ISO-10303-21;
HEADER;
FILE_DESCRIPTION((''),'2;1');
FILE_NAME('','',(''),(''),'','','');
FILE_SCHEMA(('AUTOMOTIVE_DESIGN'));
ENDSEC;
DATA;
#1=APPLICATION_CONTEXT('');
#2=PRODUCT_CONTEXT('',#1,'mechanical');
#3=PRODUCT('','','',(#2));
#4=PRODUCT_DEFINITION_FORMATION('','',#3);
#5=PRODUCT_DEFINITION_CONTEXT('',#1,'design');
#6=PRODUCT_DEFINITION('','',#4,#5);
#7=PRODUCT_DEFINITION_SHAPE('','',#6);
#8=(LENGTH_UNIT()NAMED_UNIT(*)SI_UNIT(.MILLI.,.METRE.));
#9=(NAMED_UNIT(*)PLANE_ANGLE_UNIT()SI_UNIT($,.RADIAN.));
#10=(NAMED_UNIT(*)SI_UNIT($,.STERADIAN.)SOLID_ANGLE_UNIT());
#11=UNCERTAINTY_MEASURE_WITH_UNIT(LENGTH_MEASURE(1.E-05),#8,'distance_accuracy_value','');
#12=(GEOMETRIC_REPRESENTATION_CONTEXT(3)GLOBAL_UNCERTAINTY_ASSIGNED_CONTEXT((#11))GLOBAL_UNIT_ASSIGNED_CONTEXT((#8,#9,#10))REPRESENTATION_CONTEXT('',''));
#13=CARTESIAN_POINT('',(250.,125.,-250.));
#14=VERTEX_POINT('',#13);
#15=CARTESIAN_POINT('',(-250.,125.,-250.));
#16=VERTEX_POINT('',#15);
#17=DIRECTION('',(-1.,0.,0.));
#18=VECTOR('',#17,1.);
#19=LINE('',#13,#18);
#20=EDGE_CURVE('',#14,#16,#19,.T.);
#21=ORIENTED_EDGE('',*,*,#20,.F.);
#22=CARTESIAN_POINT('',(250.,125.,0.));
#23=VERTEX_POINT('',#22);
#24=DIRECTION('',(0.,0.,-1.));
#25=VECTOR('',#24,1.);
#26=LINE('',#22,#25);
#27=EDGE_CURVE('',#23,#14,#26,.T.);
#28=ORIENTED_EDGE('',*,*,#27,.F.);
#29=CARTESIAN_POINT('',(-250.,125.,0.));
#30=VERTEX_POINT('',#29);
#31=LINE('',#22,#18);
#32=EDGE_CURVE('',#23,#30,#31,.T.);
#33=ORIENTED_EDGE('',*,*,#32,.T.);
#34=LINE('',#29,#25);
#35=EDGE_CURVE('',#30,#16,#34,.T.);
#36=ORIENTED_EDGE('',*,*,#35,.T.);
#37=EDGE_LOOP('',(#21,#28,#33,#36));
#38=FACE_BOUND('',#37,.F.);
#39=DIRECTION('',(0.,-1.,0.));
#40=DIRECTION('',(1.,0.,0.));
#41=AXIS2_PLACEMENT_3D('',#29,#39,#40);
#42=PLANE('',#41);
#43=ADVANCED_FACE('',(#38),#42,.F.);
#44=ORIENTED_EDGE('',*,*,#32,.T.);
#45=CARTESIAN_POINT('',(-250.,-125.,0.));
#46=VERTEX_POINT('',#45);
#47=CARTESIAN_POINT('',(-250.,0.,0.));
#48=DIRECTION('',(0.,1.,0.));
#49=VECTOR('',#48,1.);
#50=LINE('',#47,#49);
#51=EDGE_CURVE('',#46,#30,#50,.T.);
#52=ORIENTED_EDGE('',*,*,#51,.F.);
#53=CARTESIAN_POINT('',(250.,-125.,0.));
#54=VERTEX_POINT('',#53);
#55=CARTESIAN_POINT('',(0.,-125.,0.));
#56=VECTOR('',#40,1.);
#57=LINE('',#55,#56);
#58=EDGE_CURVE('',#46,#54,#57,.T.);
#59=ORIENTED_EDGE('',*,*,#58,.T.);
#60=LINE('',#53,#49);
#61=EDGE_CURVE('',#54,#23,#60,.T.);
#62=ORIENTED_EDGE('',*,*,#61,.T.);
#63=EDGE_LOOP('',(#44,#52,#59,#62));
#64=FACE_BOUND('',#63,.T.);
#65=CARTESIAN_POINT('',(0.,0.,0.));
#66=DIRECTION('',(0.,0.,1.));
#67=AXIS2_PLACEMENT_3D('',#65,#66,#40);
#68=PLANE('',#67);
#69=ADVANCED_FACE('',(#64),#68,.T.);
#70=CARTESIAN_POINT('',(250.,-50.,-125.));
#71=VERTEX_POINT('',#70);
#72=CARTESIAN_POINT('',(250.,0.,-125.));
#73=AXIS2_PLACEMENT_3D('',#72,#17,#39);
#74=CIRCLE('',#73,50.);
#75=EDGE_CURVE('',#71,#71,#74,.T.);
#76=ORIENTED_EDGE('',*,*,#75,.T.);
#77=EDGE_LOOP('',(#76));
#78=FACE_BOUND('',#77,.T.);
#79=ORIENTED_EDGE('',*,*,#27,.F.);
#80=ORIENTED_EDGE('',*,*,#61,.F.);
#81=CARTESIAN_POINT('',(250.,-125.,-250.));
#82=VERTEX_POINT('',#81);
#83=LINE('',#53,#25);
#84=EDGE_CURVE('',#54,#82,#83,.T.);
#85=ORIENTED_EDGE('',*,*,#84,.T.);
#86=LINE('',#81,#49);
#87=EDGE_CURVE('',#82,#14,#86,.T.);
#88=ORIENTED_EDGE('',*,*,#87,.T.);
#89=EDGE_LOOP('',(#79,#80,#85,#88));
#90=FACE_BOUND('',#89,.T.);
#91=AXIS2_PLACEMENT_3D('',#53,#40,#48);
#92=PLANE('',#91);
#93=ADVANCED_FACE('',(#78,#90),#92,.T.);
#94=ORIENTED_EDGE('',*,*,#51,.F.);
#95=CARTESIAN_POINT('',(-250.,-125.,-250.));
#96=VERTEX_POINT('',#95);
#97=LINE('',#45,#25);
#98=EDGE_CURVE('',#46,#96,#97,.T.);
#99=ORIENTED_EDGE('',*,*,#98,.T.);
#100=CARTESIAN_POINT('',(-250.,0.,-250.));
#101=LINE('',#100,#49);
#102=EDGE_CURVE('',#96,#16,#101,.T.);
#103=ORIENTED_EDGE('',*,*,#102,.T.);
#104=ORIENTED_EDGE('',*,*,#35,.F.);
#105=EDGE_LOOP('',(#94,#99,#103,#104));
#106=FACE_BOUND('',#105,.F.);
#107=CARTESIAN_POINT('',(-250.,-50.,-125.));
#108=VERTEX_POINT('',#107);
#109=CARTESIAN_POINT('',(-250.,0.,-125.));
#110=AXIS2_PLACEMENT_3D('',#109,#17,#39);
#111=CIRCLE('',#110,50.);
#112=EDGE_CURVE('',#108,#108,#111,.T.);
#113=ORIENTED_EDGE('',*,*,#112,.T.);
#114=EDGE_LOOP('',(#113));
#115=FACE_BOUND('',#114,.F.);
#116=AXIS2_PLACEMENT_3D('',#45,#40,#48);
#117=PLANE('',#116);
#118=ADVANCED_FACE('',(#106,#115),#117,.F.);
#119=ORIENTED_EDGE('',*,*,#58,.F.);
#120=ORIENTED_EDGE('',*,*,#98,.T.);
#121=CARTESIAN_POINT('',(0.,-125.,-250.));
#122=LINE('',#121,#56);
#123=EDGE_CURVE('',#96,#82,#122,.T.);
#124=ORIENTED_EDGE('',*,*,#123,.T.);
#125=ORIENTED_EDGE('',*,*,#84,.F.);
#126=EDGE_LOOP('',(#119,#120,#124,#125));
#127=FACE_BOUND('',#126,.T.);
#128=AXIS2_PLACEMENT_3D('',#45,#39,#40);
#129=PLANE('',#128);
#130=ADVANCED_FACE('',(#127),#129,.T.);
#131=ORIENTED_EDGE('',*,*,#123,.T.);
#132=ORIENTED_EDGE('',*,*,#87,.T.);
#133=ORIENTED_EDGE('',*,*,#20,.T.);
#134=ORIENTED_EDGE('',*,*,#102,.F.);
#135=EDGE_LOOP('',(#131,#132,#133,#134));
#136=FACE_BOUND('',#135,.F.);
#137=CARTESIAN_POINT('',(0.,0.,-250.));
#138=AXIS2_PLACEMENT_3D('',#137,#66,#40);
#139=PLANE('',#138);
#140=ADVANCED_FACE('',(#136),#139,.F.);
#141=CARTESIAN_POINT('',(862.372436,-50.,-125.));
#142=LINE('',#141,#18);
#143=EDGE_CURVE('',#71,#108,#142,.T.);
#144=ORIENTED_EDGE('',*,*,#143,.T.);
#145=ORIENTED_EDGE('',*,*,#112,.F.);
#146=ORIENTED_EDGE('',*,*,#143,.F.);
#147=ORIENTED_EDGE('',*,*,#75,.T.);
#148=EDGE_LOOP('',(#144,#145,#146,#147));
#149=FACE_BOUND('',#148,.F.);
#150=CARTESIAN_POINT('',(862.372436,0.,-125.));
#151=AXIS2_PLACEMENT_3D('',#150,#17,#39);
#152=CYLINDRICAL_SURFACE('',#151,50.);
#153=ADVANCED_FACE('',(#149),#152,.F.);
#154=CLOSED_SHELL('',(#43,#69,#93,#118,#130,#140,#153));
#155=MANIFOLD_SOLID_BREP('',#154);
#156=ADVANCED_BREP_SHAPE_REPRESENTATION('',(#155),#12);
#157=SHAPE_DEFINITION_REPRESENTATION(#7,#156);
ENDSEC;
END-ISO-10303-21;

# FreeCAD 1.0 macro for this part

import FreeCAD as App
import Part
import Sketcher
from FreeCAD import Vector
Q = App.Units.Quantity

doc = App.newDocument("Part")
body = doc.addObject("PartDesign::Body", "Body")

# Sketch on XY plane
sketch1 = body.newObject("Sketcher::SketchObject", "Sketch")
sketch1.AttachmentSupport = (doc.getObject("XY_Plane"), [""])
sketch1.MapMode = "FlatFace"
sketch1.addGeometry(Part.LineSegment(Vector(-250, 125, 0), Vector(-250, -125, 0)), False)
sketch1.addGeometry(Part.LineSegment(Vector(-250, -125, 0), Vector(250, -125, 0)), False)
sketch1.addGeometry(Part.LineSegment(Vector(250, -125, 0), Vector(250, 125, 0)), False)
sketch1.addGeometry(Part.LineSegment(Vector(250, 125, 0), Vector(-250, 125, 0)), False)
sketch1.addConstraint(Sketcher.Constraint("Coincident", 0, 2, 1, 1))
sketch1.addConstraint(Sketcher.Constraint("Coincident", 1, 2, 2, 1))
sketch1.addConstraint(Sketcher.Constraint("Coincident", 2, 2, 3, 1))
sketch1.addConstraint(Sketcher.Constraint("Coincident", 3, 2, 0, 1))
sketch1.addConstraint(Sketcher.Constraint("Vertical", 0))
sketch1.addConstraint(Sketcher.Constraint("Horizontal", 1))
sketch1.addConstraint(Sketcher.Constraint("Vertical", 2))
sketch1.addConstraint(Sketcher.Constraint("Horizontal", 3))
sketch1.addConstraint(Sketcher.Constraint("Symmetric", 0, 2, 2, 2, -1, 1))
sketch1.addConstraint(Sketcher.Constraint("DistanceX", 1, 1, 1, 2, Q("500 mm")))
sketch1.addConstraint(Sketcher.Constraint("DistanceY", 0, 2, 0, 1, Q("250 mm")))
pad1 = body.newObject("PartDesign::Pad", "Pad")
pad1.Profile = sketch1
pad1.Length = 250
pad1.Reversed = True

# Sketch on YZ plane
sketch2 = body.newObject("Sketcher::SketchObject", "Sketch001")
sketch2.AttachmentSupport = (doc.getObject("YZ_Plane"), [""])
sketch2.MapMode = "FlatFace"
sketch2.AttachmentOffset = App.Placement(Vector(0, 0, 250), App.Rotation())
sketch2.addGeometry(Part.LineSegment(Vector(125, 0, 0), Vector(0, 0, 0)), False)
sketch2.addGeometry(Part.LineSegment(Vector(0, 0, 0), Vector(0, -250, 0)), False)
sketch2.addGeometry(Part.LineSegment(Vector(0, -250, 0), Vector(125, -250, 0)), False)
sketch2.addGeometry(Part.LineSegment(Vector(125, -250, 0), Vector(125, 0, 0)), False)
sketch2.addConstraint(Sketcher.Constraint("Coincident", 0, 2, 1, 1))
sketch2.addConstraint(Sketcher.Constraint("Coincident", 1, 2, 2, 1))
sketch2.addConstraint(Sketcher.Constraint("Coincident", 2, 2, 3, 1))
sketch2.addConstraint(Sketcher.Constraint("Coincident", 3, 2, 0, 1))
sketch2.addConstraint(Sketcher.Constraint("Horizontal", 0))
sketch2.addConstraint(Sketcher.Constraint("Vertical", 1))
sketch2.addConstraint(Sketcher.Constraint("Horizontal", 2))
sketch2.addConstraint(Sketcher.Constraint("Vertical", 3))
sketch2.addConstraint(Sketcher.Constraint("Coincident", 0, 2, -1, 1))
sketch2.addConstraint(Sketcher.Constraint("DistanceX", 0, 2, 0, 1, Q("125 mm")))
sketch2.addConstraint(Sketcher.Constraint("DistanceY", 1, 2, 1, 1, Q("250 mm")))
pad2 = body.newObject("PartDesign::Pad", "Pad001")
pad2.Profile = sketch2
pad2.Length = 110.811708
pad2.Reversed = True

# Sketch on YZ plane
sketch3 = body.newObject("Sketcher::SketchObject", "Sketch002")
sketch3.AttachmentSupport = (doc.getObject("YZ_Plane"), [""])
sketch3.MapMode = "FlatFace"
sketch3.AttachmentOffset = App.Placement(Vector(0, 0, 250), App.Rotation())
sketch3.addGeometry(Part.Circle(Vector(0, -125, 0), Vector(0, 0, 1), 50), False)
sketch3.addConstraint(Sketcher.Constraint("PointOnObject", 0, 3, -2))
sketch3.addConstraint(Sketcher.Constraint("Diameter", 0, Q("100 mm")))
sketch3.addConstraint(Sketcher.Constraint("DistanceY", 0, 3, -1, 1, Q("125 mm")))
doc.recompute()
hole = body.newObject("PartDesign::Hole", "Hole")
hole.Profile = sketch3
hole.ThreadType = "None"
hole.Diameter = 100
hole.DepthType = "ThroughAll"

doc.recompute()
